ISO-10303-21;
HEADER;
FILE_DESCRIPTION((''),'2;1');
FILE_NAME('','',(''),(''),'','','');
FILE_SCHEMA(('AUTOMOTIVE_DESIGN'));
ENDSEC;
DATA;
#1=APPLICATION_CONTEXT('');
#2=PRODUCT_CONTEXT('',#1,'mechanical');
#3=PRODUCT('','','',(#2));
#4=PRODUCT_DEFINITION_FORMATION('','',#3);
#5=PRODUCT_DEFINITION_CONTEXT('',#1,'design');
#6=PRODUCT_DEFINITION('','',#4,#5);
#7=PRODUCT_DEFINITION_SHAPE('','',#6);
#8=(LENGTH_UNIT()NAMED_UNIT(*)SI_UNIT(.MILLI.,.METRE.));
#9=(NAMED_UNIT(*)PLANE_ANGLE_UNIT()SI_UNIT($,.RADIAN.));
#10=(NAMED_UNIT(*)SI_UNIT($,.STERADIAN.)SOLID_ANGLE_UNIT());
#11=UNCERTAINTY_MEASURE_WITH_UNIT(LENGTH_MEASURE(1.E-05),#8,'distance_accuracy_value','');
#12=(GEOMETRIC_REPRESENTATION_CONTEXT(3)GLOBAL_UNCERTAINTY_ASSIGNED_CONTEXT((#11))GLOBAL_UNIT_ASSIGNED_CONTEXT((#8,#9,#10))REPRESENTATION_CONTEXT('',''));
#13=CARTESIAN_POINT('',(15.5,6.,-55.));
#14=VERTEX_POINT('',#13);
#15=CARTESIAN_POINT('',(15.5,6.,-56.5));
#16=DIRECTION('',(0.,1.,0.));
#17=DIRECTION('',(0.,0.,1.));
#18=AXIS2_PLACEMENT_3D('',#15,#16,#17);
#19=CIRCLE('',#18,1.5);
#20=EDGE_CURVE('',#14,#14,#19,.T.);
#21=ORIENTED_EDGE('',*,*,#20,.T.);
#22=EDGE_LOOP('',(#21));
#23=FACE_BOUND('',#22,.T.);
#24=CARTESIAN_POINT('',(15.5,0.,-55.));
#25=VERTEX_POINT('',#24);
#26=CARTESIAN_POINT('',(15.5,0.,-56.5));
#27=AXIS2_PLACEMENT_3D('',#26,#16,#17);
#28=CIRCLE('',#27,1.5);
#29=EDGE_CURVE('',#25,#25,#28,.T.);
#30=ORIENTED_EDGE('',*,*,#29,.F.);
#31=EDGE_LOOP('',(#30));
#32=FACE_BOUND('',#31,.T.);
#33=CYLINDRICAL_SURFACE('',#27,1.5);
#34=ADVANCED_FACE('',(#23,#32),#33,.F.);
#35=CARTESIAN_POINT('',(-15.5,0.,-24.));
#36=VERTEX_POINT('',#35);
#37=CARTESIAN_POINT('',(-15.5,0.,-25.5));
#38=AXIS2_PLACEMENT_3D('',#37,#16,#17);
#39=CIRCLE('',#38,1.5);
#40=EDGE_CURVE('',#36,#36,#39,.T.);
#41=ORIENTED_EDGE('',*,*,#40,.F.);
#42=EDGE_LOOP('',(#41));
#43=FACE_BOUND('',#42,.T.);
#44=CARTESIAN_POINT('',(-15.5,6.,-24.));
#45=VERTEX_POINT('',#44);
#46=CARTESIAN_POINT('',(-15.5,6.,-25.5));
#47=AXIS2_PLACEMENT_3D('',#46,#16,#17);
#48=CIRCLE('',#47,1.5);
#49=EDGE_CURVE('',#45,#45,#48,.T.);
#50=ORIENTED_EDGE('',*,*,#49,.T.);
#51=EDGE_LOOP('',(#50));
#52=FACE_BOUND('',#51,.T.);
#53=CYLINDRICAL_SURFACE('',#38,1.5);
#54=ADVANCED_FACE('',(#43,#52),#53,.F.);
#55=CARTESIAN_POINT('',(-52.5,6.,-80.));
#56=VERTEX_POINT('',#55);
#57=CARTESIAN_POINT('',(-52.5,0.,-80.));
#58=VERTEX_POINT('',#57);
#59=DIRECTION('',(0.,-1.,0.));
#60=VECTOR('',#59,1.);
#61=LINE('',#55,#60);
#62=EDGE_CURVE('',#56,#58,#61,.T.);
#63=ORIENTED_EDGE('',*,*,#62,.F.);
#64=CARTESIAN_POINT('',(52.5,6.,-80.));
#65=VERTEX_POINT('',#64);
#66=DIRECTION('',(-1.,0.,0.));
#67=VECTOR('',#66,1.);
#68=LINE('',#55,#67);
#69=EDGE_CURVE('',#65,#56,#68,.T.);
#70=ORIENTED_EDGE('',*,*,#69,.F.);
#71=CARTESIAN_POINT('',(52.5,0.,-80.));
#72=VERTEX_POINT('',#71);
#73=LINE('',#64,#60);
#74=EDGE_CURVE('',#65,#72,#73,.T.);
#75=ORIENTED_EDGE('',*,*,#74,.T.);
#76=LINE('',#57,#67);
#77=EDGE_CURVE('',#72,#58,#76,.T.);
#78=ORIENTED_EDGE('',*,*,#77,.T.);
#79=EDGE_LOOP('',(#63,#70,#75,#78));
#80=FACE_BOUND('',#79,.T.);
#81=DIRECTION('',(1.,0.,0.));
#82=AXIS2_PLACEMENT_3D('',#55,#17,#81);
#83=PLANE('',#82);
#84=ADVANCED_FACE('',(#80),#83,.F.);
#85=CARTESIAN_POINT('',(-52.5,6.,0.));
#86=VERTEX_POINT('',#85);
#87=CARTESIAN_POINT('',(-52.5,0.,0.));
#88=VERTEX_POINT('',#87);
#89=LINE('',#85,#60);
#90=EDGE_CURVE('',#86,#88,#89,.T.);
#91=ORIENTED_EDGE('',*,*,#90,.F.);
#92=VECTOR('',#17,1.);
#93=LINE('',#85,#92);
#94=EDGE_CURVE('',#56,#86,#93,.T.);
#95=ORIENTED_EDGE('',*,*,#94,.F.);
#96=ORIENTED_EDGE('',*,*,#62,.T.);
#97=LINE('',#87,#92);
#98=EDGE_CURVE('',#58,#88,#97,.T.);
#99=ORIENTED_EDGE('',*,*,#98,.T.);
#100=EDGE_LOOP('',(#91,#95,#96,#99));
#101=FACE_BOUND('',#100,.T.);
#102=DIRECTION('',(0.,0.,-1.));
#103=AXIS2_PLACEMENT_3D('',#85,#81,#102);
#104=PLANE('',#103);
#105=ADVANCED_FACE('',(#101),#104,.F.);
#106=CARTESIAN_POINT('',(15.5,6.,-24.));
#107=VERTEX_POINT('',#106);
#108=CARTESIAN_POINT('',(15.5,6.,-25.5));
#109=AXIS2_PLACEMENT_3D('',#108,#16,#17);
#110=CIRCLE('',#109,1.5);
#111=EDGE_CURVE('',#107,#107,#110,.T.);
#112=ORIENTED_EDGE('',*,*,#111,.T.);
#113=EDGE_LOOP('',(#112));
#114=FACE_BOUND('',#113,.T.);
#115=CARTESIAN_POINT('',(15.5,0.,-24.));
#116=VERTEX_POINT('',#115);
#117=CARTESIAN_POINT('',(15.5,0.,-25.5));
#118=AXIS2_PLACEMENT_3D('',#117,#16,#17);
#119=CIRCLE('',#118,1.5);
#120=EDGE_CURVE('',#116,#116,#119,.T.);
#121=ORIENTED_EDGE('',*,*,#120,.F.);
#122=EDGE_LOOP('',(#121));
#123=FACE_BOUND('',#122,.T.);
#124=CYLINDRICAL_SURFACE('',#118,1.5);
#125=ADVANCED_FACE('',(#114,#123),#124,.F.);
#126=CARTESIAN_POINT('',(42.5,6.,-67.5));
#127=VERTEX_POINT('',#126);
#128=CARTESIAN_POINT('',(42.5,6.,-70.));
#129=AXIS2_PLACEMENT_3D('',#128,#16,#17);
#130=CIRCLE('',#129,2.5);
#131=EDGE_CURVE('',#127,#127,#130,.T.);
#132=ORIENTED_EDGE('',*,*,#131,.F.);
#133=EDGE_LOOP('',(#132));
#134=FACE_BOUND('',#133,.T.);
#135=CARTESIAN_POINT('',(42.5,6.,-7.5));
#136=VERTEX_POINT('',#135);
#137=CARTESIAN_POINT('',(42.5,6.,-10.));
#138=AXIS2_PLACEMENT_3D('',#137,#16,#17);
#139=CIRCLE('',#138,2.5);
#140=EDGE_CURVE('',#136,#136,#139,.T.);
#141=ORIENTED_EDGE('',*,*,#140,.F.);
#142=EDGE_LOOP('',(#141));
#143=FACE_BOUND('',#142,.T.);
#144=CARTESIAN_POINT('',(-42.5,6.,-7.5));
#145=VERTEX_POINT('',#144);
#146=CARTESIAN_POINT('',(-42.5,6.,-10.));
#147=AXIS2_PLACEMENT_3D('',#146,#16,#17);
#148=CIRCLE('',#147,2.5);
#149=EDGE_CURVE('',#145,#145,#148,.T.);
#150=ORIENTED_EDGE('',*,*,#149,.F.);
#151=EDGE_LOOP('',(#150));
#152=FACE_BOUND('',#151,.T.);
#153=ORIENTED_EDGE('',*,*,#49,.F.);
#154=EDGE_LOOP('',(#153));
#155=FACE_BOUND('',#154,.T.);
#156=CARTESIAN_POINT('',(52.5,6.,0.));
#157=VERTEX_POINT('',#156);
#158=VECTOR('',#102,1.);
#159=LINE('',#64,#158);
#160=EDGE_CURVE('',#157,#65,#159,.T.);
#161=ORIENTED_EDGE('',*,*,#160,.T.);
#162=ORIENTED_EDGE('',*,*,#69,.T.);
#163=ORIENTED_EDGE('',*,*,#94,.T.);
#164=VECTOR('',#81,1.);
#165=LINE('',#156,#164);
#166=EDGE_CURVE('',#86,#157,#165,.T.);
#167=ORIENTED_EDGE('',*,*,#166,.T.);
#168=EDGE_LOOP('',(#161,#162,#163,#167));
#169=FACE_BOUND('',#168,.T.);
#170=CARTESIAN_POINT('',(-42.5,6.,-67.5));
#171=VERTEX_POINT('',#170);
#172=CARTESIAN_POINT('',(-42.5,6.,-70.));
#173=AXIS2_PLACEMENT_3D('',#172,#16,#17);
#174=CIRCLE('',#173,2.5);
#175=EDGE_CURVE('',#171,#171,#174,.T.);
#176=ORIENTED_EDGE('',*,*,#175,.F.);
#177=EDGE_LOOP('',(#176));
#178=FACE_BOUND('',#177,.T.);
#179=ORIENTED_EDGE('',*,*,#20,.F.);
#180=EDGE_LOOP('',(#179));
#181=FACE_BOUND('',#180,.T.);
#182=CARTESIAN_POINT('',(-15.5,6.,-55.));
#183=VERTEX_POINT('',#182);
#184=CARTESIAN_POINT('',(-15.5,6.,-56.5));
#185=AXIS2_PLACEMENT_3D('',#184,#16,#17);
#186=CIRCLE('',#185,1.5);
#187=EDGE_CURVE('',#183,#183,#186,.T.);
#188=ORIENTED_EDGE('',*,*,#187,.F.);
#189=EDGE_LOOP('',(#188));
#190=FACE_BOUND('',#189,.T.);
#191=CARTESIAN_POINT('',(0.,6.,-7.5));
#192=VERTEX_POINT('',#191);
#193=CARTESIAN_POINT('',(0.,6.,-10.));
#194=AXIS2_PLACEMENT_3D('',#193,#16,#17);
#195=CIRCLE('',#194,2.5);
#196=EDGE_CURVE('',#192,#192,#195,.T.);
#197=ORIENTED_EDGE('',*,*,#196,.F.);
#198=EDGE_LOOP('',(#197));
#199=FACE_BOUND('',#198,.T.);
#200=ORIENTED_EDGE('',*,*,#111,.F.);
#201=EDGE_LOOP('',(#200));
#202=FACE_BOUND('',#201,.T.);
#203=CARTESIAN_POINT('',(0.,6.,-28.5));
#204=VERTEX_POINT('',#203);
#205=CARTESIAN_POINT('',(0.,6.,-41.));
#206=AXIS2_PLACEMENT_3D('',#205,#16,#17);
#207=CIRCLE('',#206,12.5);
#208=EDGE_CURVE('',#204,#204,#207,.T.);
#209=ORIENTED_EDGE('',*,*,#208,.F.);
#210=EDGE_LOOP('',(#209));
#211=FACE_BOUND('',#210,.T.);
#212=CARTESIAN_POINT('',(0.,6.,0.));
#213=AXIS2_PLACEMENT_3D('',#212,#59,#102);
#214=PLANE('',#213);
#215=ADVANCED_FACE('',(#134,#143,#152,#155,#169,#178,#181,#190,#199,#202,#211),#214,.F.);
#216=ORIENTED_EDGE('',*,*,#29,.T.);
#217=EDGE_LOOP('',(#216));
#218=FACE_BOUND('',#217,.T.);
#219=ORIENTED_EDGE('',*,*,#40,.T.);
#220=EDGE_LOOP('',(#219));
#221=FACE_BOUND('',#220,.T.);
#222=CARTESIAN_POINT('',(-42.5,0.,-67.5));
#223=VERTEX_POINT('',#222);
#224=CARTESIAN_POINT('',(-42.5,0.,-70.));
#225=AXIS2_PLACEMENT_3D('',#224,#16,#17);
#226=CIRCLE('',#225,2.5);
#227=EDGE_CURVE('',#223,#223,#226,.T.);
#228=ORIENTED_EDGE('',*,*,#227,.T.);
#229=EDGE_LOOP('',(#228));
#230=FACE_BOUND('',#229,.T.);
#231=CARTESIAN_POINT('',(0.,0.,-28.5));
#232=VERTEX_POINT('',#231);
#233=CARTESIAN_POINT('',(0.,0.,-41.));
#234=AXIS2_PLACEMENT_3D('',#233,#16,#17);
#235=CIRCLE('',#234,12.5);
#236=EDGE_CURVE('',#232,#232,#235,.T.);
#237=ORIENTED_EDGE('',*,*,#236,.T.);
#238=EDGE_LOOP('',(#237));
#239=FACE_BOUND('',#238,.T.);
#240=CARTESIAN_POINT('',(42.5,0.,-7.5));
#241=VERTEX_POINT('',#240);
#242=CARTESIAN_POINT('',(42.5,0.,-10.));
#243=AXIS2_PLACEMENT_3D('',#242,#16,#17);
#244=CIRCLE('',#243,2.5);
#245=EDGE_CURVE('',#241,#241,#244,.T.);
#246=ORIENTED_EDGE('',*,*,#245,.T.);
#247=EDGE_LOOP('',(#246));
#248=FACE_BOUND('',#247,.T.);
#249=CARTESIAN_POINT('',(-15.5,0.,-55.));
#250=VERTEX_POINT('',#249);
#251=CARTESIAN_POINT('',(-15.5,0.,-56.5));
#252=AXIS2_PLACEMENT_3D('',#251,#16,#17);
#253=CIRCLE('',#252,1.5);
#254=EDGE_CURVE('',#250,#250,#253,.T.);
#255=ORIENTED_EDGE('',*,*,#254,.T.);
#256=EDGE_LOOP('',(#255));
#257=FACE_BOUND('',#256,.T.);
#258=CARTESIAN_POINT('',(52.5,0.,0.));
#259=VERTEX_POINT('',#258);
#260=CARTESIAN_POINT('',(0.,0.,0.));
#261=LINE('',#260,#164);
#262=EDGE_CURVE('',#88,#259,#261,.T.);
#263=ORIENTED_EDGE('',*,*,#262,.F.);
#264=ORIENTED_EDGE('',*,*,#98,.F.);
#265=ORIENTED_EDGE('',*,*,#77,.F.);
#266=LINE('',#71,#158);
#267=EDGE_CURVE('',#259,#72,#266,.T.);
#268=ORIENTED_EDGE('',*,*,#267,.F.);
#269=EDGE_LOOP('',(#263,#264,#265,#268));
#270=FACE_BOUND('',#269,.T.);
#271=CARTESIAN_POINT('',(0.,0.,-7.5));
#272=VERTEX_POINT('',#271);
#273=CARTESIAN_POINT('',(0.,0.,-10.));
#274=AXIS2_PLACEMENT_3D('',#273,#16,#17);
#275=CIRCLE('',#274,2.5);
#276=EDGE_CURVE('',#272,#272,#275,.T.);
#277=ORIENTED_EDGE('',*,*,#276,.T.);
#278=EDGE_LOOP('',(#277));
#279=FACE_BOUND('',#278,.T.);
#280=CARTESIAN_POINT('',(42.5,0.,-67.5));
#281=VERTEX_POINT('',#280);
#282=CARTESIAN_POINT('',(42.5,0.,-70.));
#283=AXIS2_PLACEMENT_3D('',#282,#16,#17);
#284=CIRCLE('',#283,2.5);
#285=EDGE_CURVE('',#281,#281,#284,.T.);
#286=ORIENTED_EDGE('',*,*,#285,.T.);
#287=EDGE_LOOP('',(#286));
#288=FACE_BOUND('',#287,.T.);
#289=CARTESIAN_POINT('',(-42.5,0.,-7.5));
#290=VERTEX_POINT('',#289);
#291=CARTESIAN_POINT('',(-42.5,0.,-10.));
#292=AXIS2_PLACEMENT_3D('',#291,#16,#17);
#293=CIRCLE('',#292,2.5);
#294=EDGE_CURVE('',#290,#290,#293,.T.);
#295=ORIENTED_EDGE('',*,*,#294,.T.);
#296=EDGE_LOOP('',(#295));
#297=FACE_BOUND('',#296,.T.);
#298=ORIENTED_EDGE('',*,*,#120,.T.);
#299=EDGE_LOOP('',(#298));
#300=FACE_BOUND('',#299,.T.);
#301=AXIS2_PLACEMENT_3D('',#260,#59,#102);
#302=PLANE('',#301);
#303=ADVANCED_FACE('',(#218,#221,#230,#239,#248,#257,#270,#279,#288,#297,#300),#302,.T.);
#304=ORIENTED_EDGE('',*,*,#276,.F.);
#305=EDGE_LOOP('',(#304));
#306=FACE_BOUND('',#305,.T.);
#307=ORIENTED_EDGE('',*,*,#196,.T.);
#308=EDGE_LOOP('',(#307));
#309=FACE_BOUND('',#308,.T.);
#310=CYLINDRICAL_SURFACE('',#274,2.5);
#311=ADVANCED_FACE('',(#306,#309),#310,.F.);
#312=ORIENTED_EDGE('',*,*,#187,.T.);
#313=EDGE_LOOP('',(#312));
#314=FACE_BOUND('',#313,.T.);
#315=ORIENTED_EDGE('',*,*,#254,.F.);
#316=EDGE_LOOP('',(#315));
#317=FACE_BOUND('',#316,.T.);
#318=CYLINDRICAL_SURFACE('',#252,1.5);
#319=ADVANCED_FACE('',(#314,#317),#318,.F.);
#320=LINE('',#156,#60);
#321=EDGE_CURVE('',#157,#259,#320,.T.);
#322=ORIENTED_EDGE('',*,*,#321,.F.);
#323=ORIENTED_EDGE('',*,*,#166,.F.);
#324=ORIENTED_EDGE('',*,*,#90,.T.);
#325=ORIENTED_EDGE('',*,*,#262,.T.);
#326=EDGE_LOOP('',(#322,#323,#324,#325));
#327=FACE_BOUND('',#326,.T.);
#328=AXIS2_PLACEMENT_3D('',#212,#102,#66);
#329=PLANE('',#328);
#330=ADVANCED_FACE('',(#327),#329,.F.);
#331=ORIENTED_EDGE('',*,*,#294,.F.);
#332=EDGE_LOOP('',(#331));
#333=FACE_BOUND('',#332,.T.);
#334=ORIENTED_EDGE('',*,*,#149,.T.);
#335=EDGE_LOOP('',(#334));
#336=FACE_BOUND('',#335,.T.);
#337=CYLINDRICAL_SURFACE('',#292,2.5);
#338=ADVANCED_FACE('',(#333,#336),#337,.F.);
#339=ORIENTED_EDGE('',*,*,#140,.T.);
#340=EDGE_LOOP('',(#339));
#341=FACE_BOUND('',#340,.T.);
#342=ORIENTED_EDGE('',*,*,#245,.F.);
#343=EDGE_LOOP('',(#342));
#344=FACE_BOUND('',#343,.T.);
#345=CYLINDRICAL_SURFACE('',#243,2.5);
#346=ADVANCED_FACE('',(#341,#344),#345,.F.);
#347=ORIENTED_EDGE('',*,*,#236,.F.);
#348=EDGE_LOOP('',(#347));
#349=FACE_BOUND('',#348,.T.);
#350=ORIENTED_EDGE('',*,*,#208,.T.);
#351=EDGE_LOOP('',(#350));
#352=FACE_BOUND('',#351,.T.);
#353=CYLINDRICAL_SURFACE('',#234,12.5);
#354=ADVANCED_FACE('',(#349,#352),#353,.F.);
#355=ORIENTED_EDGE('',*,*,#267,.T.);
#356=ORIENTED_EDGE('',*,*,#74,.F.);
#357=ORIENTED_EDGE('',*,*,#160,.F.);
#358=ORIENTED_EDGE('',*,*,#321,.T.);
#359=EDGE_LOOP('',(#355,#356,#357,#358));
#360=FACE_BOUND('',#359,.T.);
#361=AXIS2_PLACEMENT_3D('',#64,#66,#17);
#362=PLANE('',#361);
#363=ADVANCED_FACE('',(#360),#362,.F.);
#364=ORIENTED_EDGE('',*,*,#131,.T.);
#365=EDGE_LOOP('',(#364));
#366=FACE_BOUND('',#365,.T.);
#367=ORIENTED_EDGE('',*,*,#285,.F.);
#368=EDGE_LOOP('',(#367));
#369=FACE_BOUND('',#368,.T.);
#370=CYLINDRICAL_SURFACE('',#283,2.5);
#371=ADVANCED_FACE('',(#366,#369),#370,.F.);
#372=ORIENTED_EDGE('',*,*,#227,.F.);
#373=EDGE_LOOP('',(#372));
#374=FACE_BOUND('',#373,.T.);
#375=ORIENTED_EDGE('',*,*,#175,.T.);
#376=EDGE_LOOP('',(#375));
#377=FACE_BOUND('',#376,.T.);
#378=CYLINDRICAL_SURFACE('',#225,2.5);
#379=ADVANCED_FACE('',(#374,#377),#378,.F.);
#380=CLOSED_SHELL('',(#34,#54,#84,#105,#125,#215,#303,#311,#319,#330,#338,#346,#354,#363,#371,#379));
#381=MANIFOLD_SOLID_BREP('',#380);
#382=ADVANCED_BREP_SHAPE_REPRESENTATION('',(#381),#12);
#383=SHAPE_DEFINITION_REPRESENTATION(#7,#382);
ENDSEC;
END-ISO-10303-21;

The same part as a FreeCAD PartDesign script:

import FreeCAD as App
import Part
import Sketcher
from FreeCAD import Vector
Q = App.Units.Quantity


def add_polygon(sketch, points):
    """Adds a closed chain of lines whose ends are joined by coincident constraints."""
    first, n = sketch.GeometryCount, len(points)
    for a, b in zip(points, points[1:] + points[:1]):
        sketch.addGeometry(Part.LineSegment(App.Vector(*a, 0), App.Vector(*b, 0)), False)
    for i in range(n):
        sketch.addConstraint(Sketcher.Constraint("Coincident", first + i, 2, first + (i + 1) % n, 1))

doc = App.newDocument("Part")
body = doc.addObject("PartDesign::Body", "Body")

# Sketch on XZ plane
sketch1 = body.newObject("Sketcher::SketchObject", "Sketch")
sketch1.AttachmentSupport = (doc.getObject("XZ_Plane"), [""])
sketch1.MapMode = "FlatFace"
add_polygon(sketch1, [(-52.5, 0), (52.5, 0), (52.5, -80), (-52.5, -80)])  # lines 0-3
sketch1.addConstraint([
    Sketcher.Constraint("Horizontal", 0),
    Sketcher.Constraint("Vertical", 1),
    Sketcher.Constraint("Horizontal", 2),
    Sketcher.Constraint("Vertical", 3),
    Sketcher.Constraint("Symmetric", 0, 2, 3, 2, -1, 1),
    Sketcher.Constraint("DistanceX", 0, 1, 0, 2, Q("105 mm")),
    Sketcher.Constraint("DistanceY", 1, 2, 1, 1, Q("80 mm")),
])
pad1 = body.newObject("PartDesign::Pad", "Pad")
pad1.Profile = sketch1
pad1.Length = 6
pad1.Reversed = True

# Sketch on XZ plane
sketch2 = body.newObject("Sketcher::SketchObject", "Sketch001")
sketch2.AttachmentSupport = (doc.getObject("XZ_Plane"), [""])
sketch2.MapMode = "FlatFace"
sketch2.AttachmentOffset = App.Placement(Vector(0, 0, -6), App.Rotation())
sketch2.addGeometry([
    Part.Circle(Vector(-42.5, -70, 0), Vector(0, 0, 1), 2.5),  # 0
    Part.Circle(Vector(42.5, -70, 0), Vector(0, 0, 1), 2.5),  # 1
    Part.Circle(Vector(42.5, -10, 0), Vector(0, 0, 1), 2.5),  # 2
    Part.Circle(Vector(0, -10, 0), Vector(0, 0, 1), 2.5),  # 3
    Part.Circle(Vector(-42.5, -10, 0), Vector(0, 0, 1), 2.5),  # 4
    Part.Circle(Vector(0, -41, 0), Vector(0, 0, 1), 12.5),  # 5
    Part.Circle(Vector(-15.5, -56.5, 0), Vector(0, 0, 1), 1.5),  # 6
    Part.Circle(Vector(15.5, -56.5, 0), Vector(0, 0, 1), 1.5),  # 7
    Part.Circle(Vector(-15.5, -25.5, 0), Vector(0, 0, 1), 1.5),  # 8
    Part.Circle(Vector(15.5, -25.5, 0), Vector(0, 0, 1), 1.5),  # 9
], False)
sketch2.addConstraint([
    Sketcher.Constraint("Equal", 0, 1),
    Sketcher.Constraint("Equal", 1, 2),
    Sketcher.Constraint("Equal", 2, 3),
    Sketcher.Constraint("Equal", 3, 4),
    Sketcher.Constraint("Equal", 6, 7),
    Sketcher.Constraint("Equal", 7, 8),
    Sketcher.Constraint("Equal", 8, 9),
    Sketcher.Constraint("Symmetric", 0, 3, 1, 3, -2),
    Sketcher.Constraint("Symmetric", 2, 3, 4, 3, -2),
    Sketcher.Constraint("Symmetric", 6, 3, 7, 3, -2),
    Sketcher.Constraint("Symmetric", 8, 3, 9, 3, -2),
    Sketcher.Constraint("PointOnObject", 3, 3, -2),
    Sketcher.Constraint("PointOnObject", 5, 3, -2),
    Sketcher.Constraint("Horizontal", 2, 3, 3, 3),
    Sketcher.Constraint("Vertical", 1, 3, 2, 3),
    Sketcher.Constraint("Vertical", 6, 3, 8, 3),
    Sketcher.Constraint("Diameter", 0, Q("5 mm")),
    Sketcher.Constraint("Diameter", 5, Q("25 mm")),
    Sketcher.Constraint("Diameter", 6, Q("3 mm")),
    Sketcher.Constraint("DistanceY", 0, 3, -1, 1, Q("70 mm")),
    Sketcher.Constraint("DistanceY", 2, 3, -1, 1, Q("10 mm")),
    Sketcher.Constraint("DistanceY", 5, 3, -1, 1, Q("41 mm")),
    Sketcher.Constraint("DistanceX", 0, 3, 1, 3, Q("85 mm")),
    Sketcher.Constraint("DistanceX", 0, 3, 6, 3, Q("27 mm")),
    Sketcher.Constraint("DistanceY", 6, 3, 8, 3, Q("31 mm")),
    Sketcher.Constraint("DistanceY", 6, 3, -1, 1, Q("56.5 mm")),
])
pocket1 = body.newObject("PartDesign::Pocket", "Pocket")
pocket1.Profile = sketch2
pocket1.Type = "ThroughAll"
pocket1.Reversed = True

doc.recompute()
